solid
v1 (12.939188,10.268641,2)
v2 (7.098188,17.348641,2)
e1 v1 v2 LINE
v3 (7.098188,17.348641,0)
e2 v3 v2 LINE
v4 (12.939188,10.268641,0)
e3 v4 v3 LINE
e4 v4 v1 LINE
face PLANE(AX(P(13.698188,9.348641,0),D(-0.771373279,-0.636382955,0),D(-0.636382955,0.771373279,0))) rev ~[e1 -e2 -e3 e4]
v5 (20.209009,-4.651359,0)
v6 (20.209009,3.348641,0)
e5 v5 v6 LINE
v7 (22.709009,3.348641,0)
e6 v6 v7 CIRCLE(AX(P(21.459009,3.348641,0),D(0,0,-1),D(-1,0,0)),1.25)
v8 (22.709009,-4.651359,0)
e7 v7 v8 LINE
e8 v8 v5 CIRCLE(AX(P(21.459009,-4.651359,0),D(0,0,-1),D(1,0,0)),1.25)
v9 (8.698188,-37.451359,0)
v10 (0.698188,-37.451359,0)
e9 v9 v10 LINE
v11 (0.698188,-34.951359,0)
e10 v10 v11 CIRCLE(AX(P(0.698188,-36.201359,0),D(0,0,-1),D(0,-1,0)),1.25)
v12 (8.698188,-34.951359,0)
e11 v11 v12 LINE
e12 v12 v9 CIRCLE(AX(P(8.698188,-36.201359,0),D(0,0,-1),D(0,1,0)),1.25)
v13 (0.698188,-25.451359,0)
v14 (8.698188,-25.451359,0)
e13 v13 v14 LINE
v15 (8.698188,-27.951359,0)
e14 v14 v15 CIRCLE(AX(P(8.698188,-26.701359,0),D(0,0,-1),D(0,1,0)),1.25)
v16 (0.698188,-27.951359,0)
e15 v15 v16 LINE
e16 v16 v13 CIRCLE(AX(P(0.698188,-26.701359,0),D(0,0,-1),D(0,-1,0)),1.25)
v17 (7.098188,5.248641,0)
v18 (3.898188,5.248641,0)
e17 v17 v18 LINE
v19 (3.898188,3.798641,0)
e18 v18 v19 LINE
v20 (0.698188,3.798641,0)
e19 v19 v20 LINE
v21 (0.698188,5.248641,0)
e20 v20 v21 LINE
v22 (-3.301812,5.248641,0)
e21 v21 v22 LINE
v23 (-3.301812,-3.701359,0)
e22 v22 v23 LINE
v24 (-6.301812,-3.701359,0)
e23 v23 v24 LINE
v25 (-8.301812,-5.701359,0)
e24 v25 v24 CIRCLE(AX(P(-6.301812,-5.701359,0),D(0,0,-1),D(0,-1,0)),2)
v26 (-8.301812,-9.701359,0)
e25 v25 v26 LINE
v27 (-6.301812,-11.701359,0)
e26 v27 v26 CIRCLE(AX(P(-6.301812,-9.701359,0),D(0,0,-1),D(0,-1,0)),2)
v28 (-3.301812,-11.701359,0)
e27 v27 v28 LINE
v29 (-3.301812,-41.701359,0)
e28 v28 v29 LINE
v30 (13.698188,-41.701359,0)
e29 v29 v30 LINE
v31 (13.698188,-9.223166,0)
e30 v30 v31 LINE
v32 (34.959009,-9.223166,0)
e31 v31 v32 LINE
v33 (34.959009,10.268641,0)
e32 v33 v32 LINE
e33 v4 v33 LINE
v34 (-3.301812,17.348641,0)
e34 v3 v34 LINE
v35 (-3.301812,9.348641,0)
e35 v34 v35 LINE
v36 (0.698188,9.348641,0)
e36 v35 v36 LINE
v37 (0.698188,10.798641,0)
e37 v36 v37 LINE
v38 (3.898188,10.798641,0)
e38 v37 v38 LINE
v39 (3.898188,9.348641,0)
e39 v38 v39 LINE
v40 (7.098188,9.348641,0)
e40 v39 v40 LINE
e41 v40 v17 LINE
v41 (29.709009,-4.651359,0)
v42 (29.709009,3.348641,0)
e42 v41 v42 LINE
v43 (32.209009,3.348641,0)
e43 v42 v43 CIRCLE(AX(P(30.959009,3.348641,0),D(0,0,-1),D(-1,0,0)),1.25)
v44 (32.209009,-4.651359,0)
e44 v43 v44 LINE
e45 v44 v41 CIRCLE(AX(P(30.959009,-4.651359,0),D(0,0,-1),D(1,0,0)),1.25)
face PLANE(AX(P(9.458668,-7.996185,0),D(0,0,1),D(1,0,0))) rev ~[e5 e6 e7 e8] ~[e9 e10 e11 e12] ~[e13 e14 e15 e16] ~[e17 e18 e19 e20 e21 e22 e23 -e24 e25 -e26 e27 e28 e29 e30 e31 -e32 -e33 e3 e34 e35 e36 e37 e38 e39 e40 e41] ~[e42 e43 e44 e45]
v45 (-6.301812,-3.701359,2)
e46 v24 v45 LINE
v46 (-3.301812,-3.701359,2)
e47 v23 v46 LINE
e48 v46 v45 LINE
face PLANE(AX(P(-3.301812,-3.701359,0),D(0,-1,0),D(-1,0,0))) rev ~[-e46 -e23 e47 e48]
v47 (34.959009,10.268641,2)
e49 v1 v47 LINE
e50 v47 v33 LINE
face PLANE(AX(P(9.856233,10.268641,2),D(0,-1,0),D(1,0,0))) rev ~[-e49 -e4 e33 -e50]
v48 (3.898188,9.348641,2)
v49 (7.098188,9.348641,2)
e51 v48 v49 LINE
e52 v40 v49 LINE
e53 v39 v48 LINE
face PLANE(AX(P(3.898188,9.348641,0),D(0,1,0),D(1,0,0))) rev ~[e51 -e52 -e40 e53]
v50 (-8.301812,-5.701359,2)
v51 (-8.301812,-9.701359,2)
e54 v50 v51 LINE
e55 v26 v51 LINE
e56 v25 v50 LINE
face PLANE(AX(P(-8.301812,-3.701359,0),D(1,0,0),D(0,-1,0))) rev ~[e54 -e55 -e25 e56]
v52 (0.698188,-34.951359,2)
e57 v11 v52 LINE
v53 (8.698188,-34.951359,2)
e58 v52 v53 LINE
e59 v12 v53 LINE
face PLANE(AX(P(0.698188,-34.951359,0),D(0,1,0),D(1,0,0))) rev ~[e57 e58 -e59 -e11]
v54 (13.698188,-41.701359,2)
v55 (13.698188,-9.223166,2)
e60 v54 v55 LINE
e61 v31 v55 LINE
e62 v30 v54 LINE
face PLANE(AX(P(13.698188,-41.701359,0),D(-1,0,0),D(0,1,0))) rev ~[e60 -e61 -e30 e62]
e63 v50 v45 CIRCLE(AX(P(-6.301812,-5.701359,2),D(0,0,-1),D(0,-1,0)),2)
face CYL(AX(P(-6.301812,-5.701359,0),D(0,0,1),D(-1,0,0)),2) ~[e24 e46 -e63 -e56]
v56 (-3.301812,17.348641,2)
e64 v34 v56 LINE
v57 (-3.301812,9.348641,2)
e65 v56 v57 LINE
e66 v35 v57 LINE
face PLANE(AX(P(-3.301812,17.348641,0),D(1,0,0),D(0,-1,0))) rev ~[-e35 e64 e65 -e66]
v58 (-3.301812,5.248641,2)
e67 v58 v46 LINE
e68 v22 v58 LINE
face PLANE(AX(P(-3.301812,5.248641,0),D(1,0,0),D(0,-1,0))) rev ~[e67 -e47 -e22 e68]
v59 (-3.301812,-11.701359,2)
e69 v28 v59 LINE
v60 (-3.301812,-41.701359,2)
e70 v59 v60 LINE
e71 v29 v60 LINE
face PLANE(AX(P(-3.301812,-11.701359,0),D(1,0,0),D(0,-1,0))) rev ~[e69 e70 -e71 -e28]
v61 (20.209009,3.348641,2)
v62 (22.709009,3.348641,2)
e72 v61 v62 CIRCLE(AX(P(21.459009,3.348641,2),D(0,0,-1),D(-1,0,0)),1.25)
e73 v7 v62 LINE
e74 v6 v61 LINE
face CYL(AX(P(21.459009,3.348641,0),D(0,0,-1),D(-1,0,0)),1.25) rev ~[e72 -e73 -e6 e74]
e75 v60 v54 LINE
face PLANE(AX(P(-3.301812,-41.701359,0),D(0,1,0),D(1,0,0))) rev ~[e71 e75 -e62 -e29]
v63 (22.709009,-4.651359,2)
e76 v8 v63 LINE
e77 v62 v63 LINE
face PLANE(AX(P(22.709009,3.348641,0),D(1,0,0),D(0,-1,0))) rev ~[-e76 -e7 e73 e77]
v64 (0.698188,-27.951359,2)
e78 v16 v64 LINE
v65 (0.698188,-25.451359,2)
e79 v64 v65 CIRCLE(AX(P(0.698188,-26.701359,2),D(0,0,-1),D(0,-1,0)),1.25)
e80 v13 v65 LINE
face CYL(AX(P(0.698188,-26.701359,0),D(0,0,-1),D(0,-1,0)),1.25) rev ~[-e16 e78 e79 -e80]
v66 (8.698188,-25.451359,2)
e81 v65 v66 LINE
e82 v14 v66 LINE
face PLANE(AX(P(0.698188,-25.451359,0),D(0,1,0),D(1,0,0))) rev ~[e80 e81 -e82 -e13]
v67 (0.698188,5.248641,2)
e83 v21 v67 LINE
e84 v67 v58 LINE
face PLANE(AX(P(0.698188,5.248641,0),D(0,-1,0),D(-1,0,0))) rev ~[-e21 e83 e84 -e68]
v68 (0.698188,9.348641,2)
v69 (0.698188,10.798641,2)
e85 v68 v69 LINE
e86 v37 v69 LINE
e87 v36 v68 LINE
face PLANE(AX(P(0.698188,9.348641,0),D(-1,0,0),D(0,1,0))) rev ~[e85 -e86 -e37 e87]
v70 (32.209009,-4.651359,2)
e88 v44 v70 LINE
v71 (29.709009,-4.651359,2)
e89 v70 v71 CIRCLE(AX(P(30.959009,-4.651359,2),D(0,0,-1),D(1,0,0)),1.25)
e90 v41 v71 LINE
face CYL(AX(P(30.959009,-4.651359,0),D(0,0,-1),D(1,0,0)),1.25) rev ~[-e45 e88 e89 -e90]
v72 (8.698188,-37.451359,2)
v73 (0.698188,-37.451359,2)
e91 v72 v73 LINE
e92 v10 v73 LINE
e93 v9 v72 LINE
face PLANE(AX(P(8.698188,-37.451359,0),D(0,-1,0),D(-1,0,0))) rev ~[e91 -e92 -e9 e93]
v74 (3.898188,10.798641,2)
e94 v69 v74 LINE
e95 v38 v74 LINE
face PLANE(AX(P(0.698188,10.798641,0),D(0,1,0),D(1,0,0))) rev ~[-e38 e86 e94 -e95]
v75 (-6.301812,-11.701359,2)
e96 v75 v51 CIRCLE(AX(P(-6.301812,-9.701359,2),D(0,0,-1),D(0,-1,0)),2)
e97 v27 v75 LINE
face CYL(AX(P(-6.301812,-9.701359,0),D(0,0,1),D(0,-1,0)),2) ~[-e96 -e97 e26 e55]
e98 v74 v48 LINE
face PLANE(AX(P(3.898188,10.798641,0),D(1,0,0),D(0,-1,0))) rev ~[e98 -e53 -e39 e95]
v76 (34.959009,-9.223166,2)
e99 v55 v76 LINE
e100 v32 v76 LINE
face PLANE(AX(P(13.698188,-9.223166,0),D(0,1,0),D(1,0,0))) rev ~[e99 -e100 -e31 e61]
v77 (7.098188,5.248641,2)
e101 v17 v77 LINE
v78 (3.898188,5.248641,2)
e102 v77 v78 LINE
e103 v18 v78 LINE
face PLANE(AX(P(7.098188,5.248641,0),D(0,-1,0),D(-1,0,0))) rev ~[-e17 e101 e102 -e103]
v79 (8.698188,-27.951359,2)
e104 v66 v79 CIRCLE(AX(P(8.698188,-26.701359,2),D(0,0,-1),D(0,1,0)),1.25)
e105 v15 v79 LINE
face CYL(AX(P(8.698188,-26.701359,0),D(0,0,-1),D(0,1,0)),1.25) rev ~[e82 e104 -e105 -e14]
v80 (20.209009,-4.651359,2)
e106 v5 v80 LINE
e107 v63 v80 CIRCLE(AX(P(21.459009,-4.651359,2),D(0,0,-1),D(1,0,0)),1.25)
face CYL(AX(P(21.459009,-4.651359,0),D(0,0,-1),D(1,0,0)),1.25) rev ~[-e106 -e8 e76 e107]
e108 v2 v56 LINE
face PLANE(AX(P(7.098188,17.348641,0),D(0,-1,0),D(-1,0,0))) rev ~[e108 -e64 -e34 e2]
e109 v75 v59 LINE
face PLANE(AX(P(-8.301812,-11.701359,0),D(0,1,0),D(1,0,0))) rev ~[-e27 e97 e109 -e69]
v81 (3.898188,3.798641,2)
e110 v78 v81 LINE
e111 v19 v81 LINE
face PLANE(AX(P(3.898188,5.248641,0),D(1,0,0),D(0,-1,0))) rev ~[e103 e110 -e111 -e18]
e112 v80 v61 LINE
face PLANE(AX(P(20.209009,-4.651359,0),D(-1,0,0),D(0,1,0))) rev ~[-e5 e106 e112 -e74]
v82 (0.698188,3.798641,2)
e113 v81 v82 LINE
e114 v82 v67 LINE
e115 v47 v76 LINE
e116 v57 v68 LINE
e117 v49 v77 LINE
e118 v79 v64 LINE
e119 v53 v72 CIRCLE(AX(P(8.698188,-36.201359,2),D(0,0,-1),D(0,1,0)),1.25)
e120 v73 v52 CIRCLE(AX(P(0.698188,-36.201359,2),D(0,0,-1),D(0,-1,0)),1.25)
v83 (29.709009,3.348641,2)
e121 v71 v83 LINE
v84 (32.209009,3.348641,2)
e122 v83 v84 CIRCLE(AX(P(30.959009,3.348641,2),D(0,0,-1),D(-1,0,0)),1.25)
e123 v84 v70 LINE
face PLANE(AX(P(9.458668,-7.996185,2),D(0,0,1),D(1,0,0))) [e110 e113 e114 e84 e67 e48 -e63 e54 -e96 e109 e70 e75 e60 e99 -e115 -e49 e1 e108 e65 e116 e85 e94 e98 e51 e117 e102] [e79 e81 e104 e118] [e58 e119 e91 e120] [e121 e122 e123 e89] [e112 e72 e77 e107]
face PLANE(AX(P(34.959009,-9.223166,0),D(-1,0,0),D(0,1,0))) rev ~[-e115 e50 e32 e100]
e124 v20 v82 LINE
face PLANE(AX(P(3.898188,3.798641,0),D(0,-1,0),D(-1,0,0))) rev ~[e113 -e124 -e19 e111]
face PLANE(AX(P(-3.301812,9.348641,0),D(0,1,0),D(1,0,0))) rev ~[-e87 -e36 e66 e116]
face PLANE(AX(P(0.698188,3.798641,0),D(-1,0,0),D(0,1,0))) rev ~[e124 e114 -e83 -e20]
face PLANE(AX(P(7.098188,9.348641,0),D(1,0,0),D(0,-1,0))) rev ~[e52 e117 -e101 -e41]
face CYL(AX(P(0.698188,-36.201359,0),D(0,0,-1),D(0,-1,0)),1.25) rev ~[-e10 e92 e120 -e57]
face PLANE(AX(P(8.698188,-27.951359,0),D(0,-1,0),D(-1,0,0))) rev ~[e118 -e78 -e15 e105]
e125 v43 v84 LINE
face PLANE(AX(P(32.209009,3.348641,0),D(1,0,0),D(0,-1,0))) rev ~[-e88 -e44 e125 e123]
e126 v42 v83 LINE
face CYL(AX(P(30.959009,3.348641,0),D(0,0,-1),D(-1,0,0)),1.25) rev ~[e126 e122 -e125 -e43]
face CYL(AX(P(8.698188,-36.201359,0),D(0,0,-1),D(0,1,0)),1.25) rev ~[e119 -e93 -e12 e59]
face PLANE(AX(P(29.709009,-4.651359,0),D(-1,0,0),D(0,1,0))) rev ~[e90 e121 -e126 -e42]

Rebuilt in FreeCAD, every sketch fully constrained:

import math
import FreeCAD as App
import Part
import Sketcher


def edges_at(feature, points):
    """Names of the edges that pass closest to the given points."""
    edges = feature.Shape.Edges
    near = lambda p: min(range(len(edges)), key=lambda i: edges[i].distToShape(Part.Vertex(*p))[0])
    return sorted({f"Edge{near(p) + 1}" for p in points})

doc = App.newDocument("Part")
body = doc.addObject("PartDesign::Body", "Body")

# Sketch on XY plane
sketch1 = body.newObject("Sketcher::SketchObject", "Sketch")
sketch1.AttachmentSupport = (doc.getObject("XY_Plane"), [""])
sketch1.MapMode = "FlatFace"
sketch1.addGeometry([
    Part.LineSegment(App.Vector(-8.3, -11.7, 0), App.Vector(-3.3, -11.7, 0)),  # 0
    Part.LineSegment(App.Vector(-3.3, -11.7, 0), App.Vector(-3.3, -41.7, 0)),  # 1
    Part.LineSegment(App.Vector(-3.3, -41.7, 0), App.Vector(13.7, -41.7, 0)),  # 2
    Part.LineSegment(App.Vector(13.7, -41.7, 0), App.Vector(13.7, -9.2, 0)),  # 3
    Part.LineSegment(App.Vector(13.7, -9.2, 0), App.Vector(35, -9.2, 0)),  # 4
    Part.LineSegment(App.Vector(35, -9.2, 0), App.Vector(35, 9.3, 0)),  # 5
    Part.LineSegment(App.Vector(35, 9.3, 0), App.Vector(13.7, 9.3, 0)),  # 6
    Part.LineSegment(App.Vector(13.7, 9.3, 0), App.Vector(7.1, 17.3, 0)),  # 7
    Part.LineSegment(App.Vector(7.1, 17.3, 0), App.Vector(-3.3, 17.3, 0)),  # 8
    Part.LineSegment(App.Vector(-3.3, 17.3, 0), App.Vector(-3.3, 9.3, 0)),  # 9
    Part.LineSegment(App.Vector(-3.3, 9.3, 0), App.Vector(0.7, 9.3, 0)),  # 10
    Part.LineSegment(App.Vector(0.7, 9.3, 0), App.Vector(0.7, 10.8, 0)),  # 11
    Part.LineSegment(App.Vector(0.7, 10.8, 0), App.Vector(3.9, 10.8, 0)),  # 12
    Part.LineSegment(App.Vector(3.9, 10.8, 0), App.Vector(3.9, 9.3, 0)),  # 13
    Part.LineSegment(App.Vector(3.9, 9.3, 0), App.Vector(7.1, 9.3, 0)),  # 14
    Part.LineSegment(App.Vector(7.1, 9.3, 0), App.Vector(7.1, 5.2, 0)),  # 15
    Part.LineSegment(App.Vector(7.1, 5.2, 0), App.Vector(3.9, 5.2, 0)),  # 16
    Part.LineSegment(App.Vector(3.9, 5.2, 0), App.Vector(3.9, 3.8, 0)),  # 17
    Part.LineSegment(App.Vector(3.9, 3.8, 0), App.Vector(0.7, 3.8, 0)),  # 18
    Part.LineSegment(App.Vector(0.7, 3.8, 0), App.Vector(0.7, 5.2, 0)),  # 19
    Part.LineSegment(App.Vector(0.7, 5.2, 0), App.Vector(-3.3, 5.2, 0)),  # 20
    Part.LineSegment(App.Vector(-3.3, 5.2, 0), App.Vector(-3.3, -3.7, 0)),  # 21
    Part.LineSegment(App.Vector(-3.3, -3.7, 0), App.Vector(-8.3, -3.7, 0)),  # 22
    Part.LineSegment(App.Vector(-8.3, -3.7, 0), App.Vector(-8.3, -11.7, 0)),  # 23
    Part.ArcOfCircle(Part.Circle(App.Vector(8.7, -36.2, 0), App.Vector(0, 0, 1), 1.2), math.radians(-90), math.radians(90)),  # 24
    Part.LineSegment(App.Vector(8.7, -37.5, 0), App.Vector(0.7, -37.5, 0)),  # 25
    Part.ArcOfCircle(Part.Circle(App.Vector(0.7, -36.2, 0), App.Vector(0, 0, 1), 1.2), math.radians(90), math.radians(270)),  # 26
    Part.LineSegment(App.Vector(0.7, -35, 0), App.Vector(8.7, -35, 0)),  # 27
    Part.ArcOfCircle(Part.Circle(App.Vector(0.7, -26.7, 0), App.Vector(0, 0, 1), 1.2), math.radians(90), math.radians(270)),  # 28
    Part.LineSegment(App.Vector(0.7, -25.5, 0), App.Vector(8.7, -25.5, 0)),  # 29
    Part.ArcOfCircle(Part.Circle(App.Vector(8.7, -26.7, 0), App.Vector(0, 0, 1), 1.2), math.radians(-90), math.radians(90)),  # 30
    Part.LineSegment(App.Vector(8.7, -28, 0), App.Vector(0.7, -28, 0)),  # 31
    Part.ArcOfCircle(Part.Circle(App.Vector(21.5, 3.3, 0), App.Vector(0, 0, 1), 1.2), math.radians(0), math.radians(180)),  # 32
    Part.LineSegment(App.Vector(22.7, 3.3, 0), App.Vector(22.7, -4.7, 0)),  # 33
    Part.ArcOfCircle(Part.Circle(App.Vector(21.5, -4.7, 0), App.Vector(0, 0, 1), 1.2), math.radians(180), math.radians(360)),  # 34
    Part.LineSegment(App.Vector(20.2, -4.7, 0), App.Vector(20.2, 3.3, 0)),  # 35
    Part.ArcOfCircle(Part.Circle(App.Vector(31, 3.3, 0), App.Vector(0, 0, 1), 1.2), math.radians(0), math.radians(180)),  # 36
    Part.LineSegment(App.Vector(32.2, 3.3, 0), App.Vector(32.2, -4.7, 0)),  # 37
    Part.ArcOfCircle(Part.Circle(App.Vector(31, -4.7, 0), App.Vector(0, 0, 1), 1.2), math.radians(180), math.radians(360)),  # 38
    Part.LineSegment(App.Vector(29.7, -4.7, 0), App.Vector(29.7, 3.3, 0)),  # 39
], False)
sketch1.addConstraint([
    Sketcher.Constraint("Coincident", 0, 2, 1, 1),
    Sketcher.Constraint("Coincident", 1, 2, 2, 1),
    Sketcher.Constraint("Coincident", 2, 2, 3, 1),
    Sketcher.Constraint("Coincident", 3, 2, 4, 1),
    Sketcher.Constraint("Coincident", 4, 2, 5, 1),
    Sketcher.Constraint("Coincident", 5, 2, 6, 1),
    Sketcher.Constraint("Coincident", 6, 2, 7, 1),
    Sketcher.Constraint("Coincident", 7, 2, 8, 1),
    Sketcher.Constraint("Coincident", 8, 2, 9, 1),
    Sketcher.Constraint("Coincident", 9, 2, 10, 1),
    Sketcher.Constraint("Coincident", 10, 2, 11, 1),
    Sketcher.Constraint("Coincident", 11, 2, 12, 1),
    Sketcher.Constraint("Coincident", 12, 2, 13, 1),
    Sketcher.Constraint("Coincident", 13, 2, 14, 1),
    Sketcher.Constraint("Coincident", 14, 2, 15, 1),
    Sketcher.Constraint("Coincident", 15, 2, 16, 1),
    Sketcher.Constraint("Coincident", 16, 2, 17, 1),
    Sketcher.Constraint("Coincident", 17, 2, 18, 1),
    Sketcher.Constraint("Coincident", 18, 2, 19, 1),
    Sketcher.Constraint("Coincident", 19, 2, 20, 1),
    Sketcher.Constraint("Coincident", 20, 2, 21, 1),
    Sketcher.Constraint("Coincident", 21, 2, 22, 1),
    Sketcher.Constraint("Coincident", 22, 2, 23, 1),
    Sketcher.Constraint("Coincident", 23, 2, 0, 1),
    Sketcher.Constraint("Tangent", 24, 1, 25, 1),
    Sketcher.Constraint("Tangent", 25, 2, 26, 2),
    Sketcher.Constraint("Tangent", 26, 1, 27, 1),
    Sketcher.Constraint("Tangent", 27, 2, 24, 2),
    Sketcher.Constraint("Tangent", 28, 1, 29, 1),
    Sketcher.Constraint("Tangent", 29, 2, 30, 2),
    Sketcher.Constraint("Tangent", 30, 1, 31, 1),
    Sketcher.Constraint("Tangent", 31, 2, 28, 2),
    Sketcher.Constraint("Tangent", 32, 1, 33, 1),
    Sketcher.Constraint("Tangent", 33, 2, 34, 2),
    Sketcher.Constraint("Tangent", 34, 1, 35, 1),
    Sketcher.Constraint("Tangent", 35, 2, 32, 2),
    Sketcher.Constraint("Tangent", 36, 1, 37, 1),
    Sketcher.Constraint("Tangent", 37, 2, 38, 2),
    Sketcher.Constraint("Tangent", 38, 1, 39, 1),
    Sketcher.Constraint("Tangent", 39, 2, 36, 2),
    Sketcher.Constraint("Horizontal", 0),
    Sketcher.Constraint("Vertical", 1),
    Sketcher.Constraint("Horizontal", 2),
    Sketcher.Constraint("Vertical", 3),
    Sketcher.Constraint("Horizontal", 4),
    Sketcher.Constraint("Vertical", 5),
    Sketcher.Constraint("Horizontal", 6),
    Sketcher.Constraint("Horizontal", 8),
    Sketcher.Constraint("Vertical", 9),
    Sketcher.Constraint("Horizontal", 10),
    Sketcher.Constraint("Vertical", 11),
    Sketcher.Constraint("Horizontal", 12),
    Sketcher.Constraint("Vertical", 13),
    Sketcher.Constraint("Horizontal", 14),
    Sketcher.Constraint("Vertical", 15),
    Sketcher.Constraint("Horizontal", 16),
    Sketcher.Constraint("Vertical", 17),
    Sketcher.Constraint("Horizontal", 18),
    Sketcher.Constraint("Vertical", 19),
    Sketcher.Constraint("Horizontal", 20),
    Sketcher.Constraint("Vertical", 21),
    Sketcher.Constraint("Horizontal", 22),
    Sketcher.Constraint("Vertical", 23),
    Sketcher.Constraint("Horizontal", 25),
    Sketcher.Constraint("Horizontal", 27),
    Sketcher.Constraint("Horizontal", 29),
    Sketcher.Constraint("Horizontal", 31),
    Sketcher.Constraint("Vertical", 33),
    Sketcher.Constraint("Vertical", 35),
    Sketcher.Constraint("Vertical", 37),
    Sketcher.Constraint("Vertical", 39),
    Sketcher.Constraint("Equal", 26, 28),
    Sketcher.Constraint("Equal", 30, 32),
    Sketcher.Constraint("Equal", 34, 36),
    Sketcher.Constraint("Horizontal", 32, 3, 36, 3),
    Sketcher.Constraint("Horizontal", 34, 3, 38, 3),
    Sketcher.Constraint("Horizontal", 6, 2, 9, 2),
    Sketcher.Constraint("Horizontal", 10, 2, 13, 2),
    Sketcher.Constraint("Horizontal", 16, 2, 19, 2),
    Sketcher.Constraint("Vertical", 26, 3, 28, 3),
    Sketcher.Constraint("Vertical", 24, 3, 30, 3),
    Sketcher.Constraint("Vertical", 3, 2, 6, 2),
    Sketcher.Constraint("Vertical", 1, 2, 8, 2),
    Sketcher.Constraint("Vertical", 28, 3, 10, 2),
    Sketcher.Constraint("Vertical", 7, 2, 14, 2),
    Sketcher.Constraint("Vertical", 13, 2, 16, 2),
    Sketcher.Constraint("Vertical", 11, 2, 18, 2),
    Sketcher.Constraint("Vertical", 9, 2, 20, 2),
    Sketcher.Constraint("Equal", 12, 14),
    Sketcher.Constraint("Equal", 31, 9),
    Sketcher.Constraint("Equal", 13, 17),
    Sketcher.Constraint("Equal", 9, 23),
    Sketcher.Constraint("Equal", 23, 33),
    Sketcher.Constraint("DistanceX", 0, 1, 0, 2, 5.0),
    Sketcher.Constraint("DistanceX", 2, 1, 2, 2, 17.0),
    Sketcher.Constraint("DistanceX", 10, 1, 10, 2, 4.0),
    Sketcher.Constraint("DistanceX", 25, 2, 25, 1, 8.0),
    Sketcher.Constraint("DistanceY", 1, 2, 1, 1, 30.0),
    Sketcher.Constraint("Radius", 24, 1.25),
    Sketcher.Constraint("DistanceX", 8, 2, 8, 1, 10.4),
    Sketcher.Constraint("DistanceY", 15, 2, 15, 1, 4.1),
    Sketcher.Constraint("DistanceY", 28, 3, 0, 2, 15.0),
    Sketcher.Constraint("DistanceX", 38, 3, 4, 2, 4.0),
    Sketcher.Constraint("DistanceY", 36, 3, 5, 2, 6.0),
    Sketcher.Constraint("DistanceY", 25, 2, 28, 1, 12.0),
    Sketcher.Constraint("DistanceX", 33, 2, 38, 1, 7.0),
    Sketcher.Constraint("DistanceY", 11, 1, 11, 2, 1.45),
    Sketcher.Constraint("DistanceY", 21, 2, 21, 1, 8.95),
    Sketcher.Constraint("DistanceX", 4, 1, 4, 2, 21.260821),
    Sketcher.Constraint("DistanceY", 3, 1, 3, 2, 32.478193),
    Sketcher.Constraint("DistanceX", -1, 1, 24, 3, 8.698188),
    Sketcher.Constraint("DistanceY", 24, 3, -1, 1, 36.201359),
])
pad1 = body.newObject("PartDesign::Pad", "Pad")
pad1.Profile = sketch1
pad1.Length = 2
doc.recompute()

fillet = body.newObject("PartDesign::Fillet", "Fillet")
fillet.Base = (pad1, edges_at(pad1, [(-8.302, -3.701, 1), (-8.302, -11.701, 1)]))
fillet.Radius = 2

# Sketch on XY plane
sketch2 = body.newObject("Sketcher::SketchObject", "Sketch001")
sketch2.AttachmentSupport = (doc.getObject("XY_Plane"), [""])
sketch2.MapMode = "FlatFace"
sketch2.AttachmentOffset = App.Placement(App.Vector(0, 0, 2), App.Rotation())
sketch2.addGeometry([
    Part.LineSegment(App.Vector(9.9, 10.3, 0), App.Vector(9.9, 9.3, 0)),
    Part.LineSegment(App.Vector(9.9, 9.3, 0), App.Vector(35, 9.3, 0)),
    Part.LineSegment(App.Vector(35, 9.3, 0), App.Vector(35, 10.3, 0)),
    Part.LineSegment(App.Vector(35, 10.3, 0), App.Vector(9.9, 10.3, 0)),
], False)
sketch2.addConstraint([
    Sketcher.Constraint("Coincident", 0, 2, 1, 1),
    Sketcher.Constraint("Coincident", 1, 2, 2, 1),
    Sketcher.Constraint("Coincident", 2, 2, 3, 1),
    Sketcher.Constraint("Coincident", 3, 2, 0, 1),
    Sketcher.Constraint("Vertical", 0),
    Sketcher.Constraint("Horizontal", 1),
    Sketcher.Constraint("Vertical", 2),
    Sketcher.Constraint("Horizontal", 3),
    Sketcher.Constraint("DistanceY", 0, 2, 0, 1, 0.92),
    Sketcher.Constraint("DistanceX", 1, 1, 1, 2, 25.102777),
    Sketcher.Constraint("DistanceY", -1, 1, 0, 2, 9.348641),
    Sketcher.Constraint("DistanceX", -1, 1, 1, 2, 34.959009),
])
pad2 = body.newObject("PartDesign::Pad", "Pad001")
pad2.Profile = sketch2
pad2.Length = 2
pad2.Reversed = True

doc.recompute()
